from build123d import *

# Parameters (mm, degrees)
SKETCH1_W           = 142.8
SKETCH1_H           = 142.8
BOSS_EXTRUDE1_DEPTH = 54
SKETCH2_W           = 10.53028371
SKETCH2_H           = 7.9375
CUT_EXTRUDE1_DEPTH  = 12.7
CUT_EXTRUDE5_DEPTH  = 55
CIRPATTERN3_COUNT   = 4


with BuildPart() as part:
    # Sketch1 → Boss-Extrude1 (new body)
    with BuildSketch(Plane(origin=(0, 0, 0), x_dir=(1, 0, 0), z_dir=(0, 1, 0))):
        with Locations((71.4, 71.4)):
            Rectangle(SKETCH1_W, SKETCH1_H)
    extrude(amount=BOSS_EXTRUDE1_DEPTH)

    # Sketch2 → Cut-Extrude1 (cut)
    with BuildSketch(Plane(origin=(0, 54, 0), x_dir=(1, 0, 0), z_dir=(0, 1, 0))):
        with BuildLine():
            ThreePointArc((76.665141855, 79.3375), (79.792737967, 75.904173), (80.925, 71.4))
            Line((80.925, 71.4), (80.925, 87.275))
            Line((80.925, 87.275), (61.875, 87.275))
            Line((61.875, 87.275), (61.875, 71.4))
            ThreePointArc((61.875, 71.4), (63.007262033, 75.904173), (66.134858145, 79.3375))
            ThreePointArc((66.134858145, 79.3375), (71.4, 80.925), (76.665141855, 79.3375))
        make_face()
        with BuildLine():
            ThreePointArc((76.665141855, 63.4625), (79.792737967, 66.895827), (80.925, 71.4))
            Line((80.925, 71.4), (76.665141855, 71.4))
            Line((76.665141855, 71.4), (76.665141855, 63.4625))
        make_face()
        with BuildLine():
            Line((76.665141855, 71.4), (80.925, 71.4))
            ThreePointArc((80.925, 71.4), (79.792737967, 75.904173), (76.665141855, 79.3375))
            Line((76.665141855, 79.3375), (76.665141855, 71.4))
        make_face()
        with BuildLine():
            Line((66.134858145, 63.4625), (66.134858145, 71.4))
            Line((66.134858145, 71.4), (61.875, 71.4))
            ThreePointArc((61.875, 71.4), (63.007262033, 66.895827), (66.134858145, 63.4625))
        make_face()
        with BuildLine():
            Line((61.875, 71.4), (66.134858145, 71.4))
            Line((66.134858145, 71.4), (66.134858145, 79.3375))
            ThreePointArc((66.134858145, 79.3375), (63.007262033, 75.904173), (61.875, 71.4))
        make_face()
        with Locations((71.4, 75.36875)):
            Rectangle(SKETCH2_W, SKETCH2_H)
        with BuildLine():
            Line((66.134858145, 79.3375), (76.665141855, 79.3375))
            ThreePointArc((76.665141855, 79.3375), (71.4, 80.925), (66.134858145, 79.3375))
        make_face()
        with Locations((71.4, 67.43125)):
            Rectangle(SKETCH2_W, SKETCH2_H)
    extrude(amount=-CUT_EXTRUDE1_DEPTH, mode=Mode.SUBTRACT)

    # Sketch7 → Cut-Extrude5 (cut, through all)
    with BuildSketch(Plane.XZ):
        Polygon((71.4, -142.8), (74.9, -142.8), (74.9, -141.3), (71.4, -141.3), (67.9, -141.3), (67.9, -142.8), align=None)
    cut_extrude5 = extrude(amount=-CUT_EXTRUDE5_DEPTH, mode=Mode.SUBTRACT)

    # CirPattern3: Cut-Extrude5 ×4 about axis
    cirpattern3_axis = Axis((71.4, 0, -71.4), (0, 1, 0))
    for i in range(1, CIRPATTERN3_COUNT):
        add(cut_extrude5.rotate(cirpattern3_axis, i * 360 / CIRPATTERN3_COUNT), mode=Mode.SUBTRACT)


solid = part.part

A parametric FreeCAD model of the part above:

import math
import FreeCAD as App
import Part
import Sketcher
Q = App.Units.Quantity


def add_polygon(sketch, points):
    """Adds a closed chain of lines whose ends are joined by coincident constraints."""
    first, n = sketch.GeometryCount, len(points)
    for a, b in zip(points, points[1:] + points[:1]):
        sketch.addGeometry(Part.LineSegment(App.Vector(*a, 0), App.Vector(*b, 0)), False)
    for i in range(n):
        sketch.addConstraint(Sketcher.Constraint("Coincident", first + i, 2, first + (i + 1) % n, 1))

doc = App.newDocument("Part")
body = doc.addObject("PartDesign::Body", "Body")

# Sketch on XZ plane
sketch1 = doc.addObject("Sketcher::SketchObject", "Sketch")
body.addObject(sketch1)
sketch1.AttachmentSupport = (doc.XZ_Plane, [""])
sketch1.MapMode = "FlatFace"
add_polygon(sketch1, [(0, -142.8), (0, 0), (142.8, 0), (142.8, -142.8)])  # lines 0-3
sketch1.addConstraint(Sketcher.Constraint("Vertical", 0))
sketch1.addConstraint(Sketcher.Constraint("Horizontal", 1))
sketch1.addConstraint(Sketcher.Constraint("Vertical", 2))
sketch1.addConstraint(Sketcher.Constraint("Horizontal", 3))
sketch1.addConstraint(Sketcher.Constraint("Coincident", 0, 2, -1, 1))
sketch1.addConstraint(Sketcher.Constraint("Equal", 3, 0))
sketch1.addConstraint(Sketcher.Constraint("DistanceX", 1, 1, 1, 2, Q("142.8 mm")))
pad1 = doc.addObject("PartDesign::Pad", "Pad")
body.addObject(pad1)
pad1.Profile = sketch1
pad1.Length = 54
pad1.Reversed = True

# Sketch on XZ plane
sketch2 = doc.addObject("Sketcher::SketchObject", "Sketch001")
body.addObject(sketch2)
sketch2.AttachmentSupport = (doc.XZ_Plane, [""])
sketch2.MapMode = "FlatFace"
sketch2.AttachmentOffset = App.Placement(App.Vector(0, 0, -54), App.Rotation())
sketch2.addGeometry(Part.ArcOfCircle(Part.Circle(App.Vector(71.4, -71.4, 0), App.Vector(0, 0, 1), 9.525), math.radians(0), math.radians(56.44269)), False)
sketch2.addGeometry(Part.LineSegment(App.Vector(80.925, -71.4, 0), App.Vector(80.925, -87.275, 0)), False)
sketch2.addGeometry(Part.LineSegment(App.Vector(80.925, -87.275, 0), App.Vector(61.875, -87.275, 0)), False)
sketch2.addGeometry(Part.LineSegment(App.Vector(61.875, -87.275, 0), App.Vector(61.875, -71.4, 0)), False)
sketch2.addGeometry(Part.ArcOfCircle(Part.Circle(App.Vector(71.4, -71.4, 0), App.Vector(0, 0, 1), 9.525), math.radians(123.55731), math.radians(180)), False)
sketch2.addGeometry(Part.LineSegment(App.Vector(66.134858, -63.4625, 0), App.Vector(76.665142, -63.4625, 0)), False)
sketch2.addConstraint(Sketcher.Constraint("Tangent", 0, 1, 1, 1))
sketch2.addConstraint(Sketcher.Constraint("Coincident", 1, 2, 2, 1))
sketch2.addConstraint(Sketcher.Constraint("Coincident", 2, 2, 3, 1))
sketch2.addConstraint(Sketcher.Constraint("Tangent", 3, 2, 4, 2))
sketch2.addConstraint(Sketcher.Constraint("Coincident", 4, 1, 5, 1))
sketch2.addConstraint(Sketcher.Constraint("Coincident", 5, 2, 0, 2))
sketch2.addConstraint(Sketcher.Constraint("Vertical", 1))
sketch2.addConstraint(Sketcher.Constraint("Horizontal", 2))
sketch2.addConstraint(Sketcher.Constraint("Vertical", 3))
sketch2.addConstraint(Sketcher.Constraint("Horizontal", 5))
sketch2.addConstraint(Sketcher.Constraint("Coincident", 4, 3, 0, 3))
sketch2.addConstraint(Sketcher.Constraint("Equal", 0, 4))
sketch2.addConstraint(Sketcher.Constraint("Radius", 0, Q("9.525 mm")))
sketch2.addConstraint(Sketcher.Constraint("DistanceX", -1, 1, 0, 3, Q("71.4 mm")))
sketch2.addConstraint(Sketcher.Constraint("DistanceY", 0, 3, -1, 1, Q("71.4 mm")))
sketch2.addConstraint(Sketcher.Constraint("DistanceY", 1, 2, 1, 1, Q("15.875 mm")))
sketch2.addConstraint(Sketcher.Constraint("DistanceY", 4, 1, -1, 1, Q("63.4625 mm")))
pocket1 = doc.addObject("PartDesign::Pocket", "Pocket")
body.addObject(pocket1)
pocket1.Profile = sketch2
pocket1.Length = 12.7
pocket1.Reversed = True

# Sketch on XZ plane
sketch3 = doc.addObject("Sketcher::SketchObject", "Sketch002")
body.addObject(sketch3)
sketch3.AttachmentSupport = (doc.XZ_Plane, [""])
sketch3.MapMode = "FlatFace"
add_polygon(sketch3, [(74.9, -142.8), (74.9, -141.3), (67.9, -141.3), (67.9, -142.8)])  # lines 0-3
sketch3.addConstraint(Sketcher.Constraint("Vertical", 0))
sketch3.addConstraint(Sketcher.Constraint("Horizontal", 1))
sketch3.addConstraint(Sketcher.Constraint("Vertical", 2))
sketch3.addConstraint(Sketcher.Constraint("Horizontal", 3))
sketch3.addConstraint(Sketcher.Constraint("DistanceX", 1, 2, 1, 1, Q("7 mm")))
sketch3.addConstraint(Sketcher.Constraint("DistanceY", 0, 1, 0, 2, Q("1.5 mm")))
sketch3.addConstraint(Sketcher.Constraint("DistanceX", -1, 1, 0, 2, Q("74.9 mm")))
sketch3.addConstraint(Sketcher.Constraint("DistanceY", 0, 2, -1, 1, Q("141.3 mm")))
pocket2 = doc.addObject("PartDesign::Pocket", "Pocket001")
body.addObject(pocket2)
pocket2.Profile = sketch3
pocket2.Type = "ThroughAll"
doc.recompute()

datumline = doc.addObject("PartDesign::Line", "DatumLine")
body.addObject(datumline)
datumline.Placement = App.Placement(App.Vector(71.4, 0, -71.4), App.Rotation(App.Vector(0, 0, 1), App.Vector(0, 1, 0)))
polarpattern = doc.addObject("PartDesign::PolarPattern", "PolarPattern")
body.addObject(polarpattern)
polarpattern.Originals = [pocket2]
polarpattern.Axis = (datumline, [""])
polarpattern.Angle = 360
polarpattern.Occurrences = 4
body.Tip = polarpattern

doc.recompute()
